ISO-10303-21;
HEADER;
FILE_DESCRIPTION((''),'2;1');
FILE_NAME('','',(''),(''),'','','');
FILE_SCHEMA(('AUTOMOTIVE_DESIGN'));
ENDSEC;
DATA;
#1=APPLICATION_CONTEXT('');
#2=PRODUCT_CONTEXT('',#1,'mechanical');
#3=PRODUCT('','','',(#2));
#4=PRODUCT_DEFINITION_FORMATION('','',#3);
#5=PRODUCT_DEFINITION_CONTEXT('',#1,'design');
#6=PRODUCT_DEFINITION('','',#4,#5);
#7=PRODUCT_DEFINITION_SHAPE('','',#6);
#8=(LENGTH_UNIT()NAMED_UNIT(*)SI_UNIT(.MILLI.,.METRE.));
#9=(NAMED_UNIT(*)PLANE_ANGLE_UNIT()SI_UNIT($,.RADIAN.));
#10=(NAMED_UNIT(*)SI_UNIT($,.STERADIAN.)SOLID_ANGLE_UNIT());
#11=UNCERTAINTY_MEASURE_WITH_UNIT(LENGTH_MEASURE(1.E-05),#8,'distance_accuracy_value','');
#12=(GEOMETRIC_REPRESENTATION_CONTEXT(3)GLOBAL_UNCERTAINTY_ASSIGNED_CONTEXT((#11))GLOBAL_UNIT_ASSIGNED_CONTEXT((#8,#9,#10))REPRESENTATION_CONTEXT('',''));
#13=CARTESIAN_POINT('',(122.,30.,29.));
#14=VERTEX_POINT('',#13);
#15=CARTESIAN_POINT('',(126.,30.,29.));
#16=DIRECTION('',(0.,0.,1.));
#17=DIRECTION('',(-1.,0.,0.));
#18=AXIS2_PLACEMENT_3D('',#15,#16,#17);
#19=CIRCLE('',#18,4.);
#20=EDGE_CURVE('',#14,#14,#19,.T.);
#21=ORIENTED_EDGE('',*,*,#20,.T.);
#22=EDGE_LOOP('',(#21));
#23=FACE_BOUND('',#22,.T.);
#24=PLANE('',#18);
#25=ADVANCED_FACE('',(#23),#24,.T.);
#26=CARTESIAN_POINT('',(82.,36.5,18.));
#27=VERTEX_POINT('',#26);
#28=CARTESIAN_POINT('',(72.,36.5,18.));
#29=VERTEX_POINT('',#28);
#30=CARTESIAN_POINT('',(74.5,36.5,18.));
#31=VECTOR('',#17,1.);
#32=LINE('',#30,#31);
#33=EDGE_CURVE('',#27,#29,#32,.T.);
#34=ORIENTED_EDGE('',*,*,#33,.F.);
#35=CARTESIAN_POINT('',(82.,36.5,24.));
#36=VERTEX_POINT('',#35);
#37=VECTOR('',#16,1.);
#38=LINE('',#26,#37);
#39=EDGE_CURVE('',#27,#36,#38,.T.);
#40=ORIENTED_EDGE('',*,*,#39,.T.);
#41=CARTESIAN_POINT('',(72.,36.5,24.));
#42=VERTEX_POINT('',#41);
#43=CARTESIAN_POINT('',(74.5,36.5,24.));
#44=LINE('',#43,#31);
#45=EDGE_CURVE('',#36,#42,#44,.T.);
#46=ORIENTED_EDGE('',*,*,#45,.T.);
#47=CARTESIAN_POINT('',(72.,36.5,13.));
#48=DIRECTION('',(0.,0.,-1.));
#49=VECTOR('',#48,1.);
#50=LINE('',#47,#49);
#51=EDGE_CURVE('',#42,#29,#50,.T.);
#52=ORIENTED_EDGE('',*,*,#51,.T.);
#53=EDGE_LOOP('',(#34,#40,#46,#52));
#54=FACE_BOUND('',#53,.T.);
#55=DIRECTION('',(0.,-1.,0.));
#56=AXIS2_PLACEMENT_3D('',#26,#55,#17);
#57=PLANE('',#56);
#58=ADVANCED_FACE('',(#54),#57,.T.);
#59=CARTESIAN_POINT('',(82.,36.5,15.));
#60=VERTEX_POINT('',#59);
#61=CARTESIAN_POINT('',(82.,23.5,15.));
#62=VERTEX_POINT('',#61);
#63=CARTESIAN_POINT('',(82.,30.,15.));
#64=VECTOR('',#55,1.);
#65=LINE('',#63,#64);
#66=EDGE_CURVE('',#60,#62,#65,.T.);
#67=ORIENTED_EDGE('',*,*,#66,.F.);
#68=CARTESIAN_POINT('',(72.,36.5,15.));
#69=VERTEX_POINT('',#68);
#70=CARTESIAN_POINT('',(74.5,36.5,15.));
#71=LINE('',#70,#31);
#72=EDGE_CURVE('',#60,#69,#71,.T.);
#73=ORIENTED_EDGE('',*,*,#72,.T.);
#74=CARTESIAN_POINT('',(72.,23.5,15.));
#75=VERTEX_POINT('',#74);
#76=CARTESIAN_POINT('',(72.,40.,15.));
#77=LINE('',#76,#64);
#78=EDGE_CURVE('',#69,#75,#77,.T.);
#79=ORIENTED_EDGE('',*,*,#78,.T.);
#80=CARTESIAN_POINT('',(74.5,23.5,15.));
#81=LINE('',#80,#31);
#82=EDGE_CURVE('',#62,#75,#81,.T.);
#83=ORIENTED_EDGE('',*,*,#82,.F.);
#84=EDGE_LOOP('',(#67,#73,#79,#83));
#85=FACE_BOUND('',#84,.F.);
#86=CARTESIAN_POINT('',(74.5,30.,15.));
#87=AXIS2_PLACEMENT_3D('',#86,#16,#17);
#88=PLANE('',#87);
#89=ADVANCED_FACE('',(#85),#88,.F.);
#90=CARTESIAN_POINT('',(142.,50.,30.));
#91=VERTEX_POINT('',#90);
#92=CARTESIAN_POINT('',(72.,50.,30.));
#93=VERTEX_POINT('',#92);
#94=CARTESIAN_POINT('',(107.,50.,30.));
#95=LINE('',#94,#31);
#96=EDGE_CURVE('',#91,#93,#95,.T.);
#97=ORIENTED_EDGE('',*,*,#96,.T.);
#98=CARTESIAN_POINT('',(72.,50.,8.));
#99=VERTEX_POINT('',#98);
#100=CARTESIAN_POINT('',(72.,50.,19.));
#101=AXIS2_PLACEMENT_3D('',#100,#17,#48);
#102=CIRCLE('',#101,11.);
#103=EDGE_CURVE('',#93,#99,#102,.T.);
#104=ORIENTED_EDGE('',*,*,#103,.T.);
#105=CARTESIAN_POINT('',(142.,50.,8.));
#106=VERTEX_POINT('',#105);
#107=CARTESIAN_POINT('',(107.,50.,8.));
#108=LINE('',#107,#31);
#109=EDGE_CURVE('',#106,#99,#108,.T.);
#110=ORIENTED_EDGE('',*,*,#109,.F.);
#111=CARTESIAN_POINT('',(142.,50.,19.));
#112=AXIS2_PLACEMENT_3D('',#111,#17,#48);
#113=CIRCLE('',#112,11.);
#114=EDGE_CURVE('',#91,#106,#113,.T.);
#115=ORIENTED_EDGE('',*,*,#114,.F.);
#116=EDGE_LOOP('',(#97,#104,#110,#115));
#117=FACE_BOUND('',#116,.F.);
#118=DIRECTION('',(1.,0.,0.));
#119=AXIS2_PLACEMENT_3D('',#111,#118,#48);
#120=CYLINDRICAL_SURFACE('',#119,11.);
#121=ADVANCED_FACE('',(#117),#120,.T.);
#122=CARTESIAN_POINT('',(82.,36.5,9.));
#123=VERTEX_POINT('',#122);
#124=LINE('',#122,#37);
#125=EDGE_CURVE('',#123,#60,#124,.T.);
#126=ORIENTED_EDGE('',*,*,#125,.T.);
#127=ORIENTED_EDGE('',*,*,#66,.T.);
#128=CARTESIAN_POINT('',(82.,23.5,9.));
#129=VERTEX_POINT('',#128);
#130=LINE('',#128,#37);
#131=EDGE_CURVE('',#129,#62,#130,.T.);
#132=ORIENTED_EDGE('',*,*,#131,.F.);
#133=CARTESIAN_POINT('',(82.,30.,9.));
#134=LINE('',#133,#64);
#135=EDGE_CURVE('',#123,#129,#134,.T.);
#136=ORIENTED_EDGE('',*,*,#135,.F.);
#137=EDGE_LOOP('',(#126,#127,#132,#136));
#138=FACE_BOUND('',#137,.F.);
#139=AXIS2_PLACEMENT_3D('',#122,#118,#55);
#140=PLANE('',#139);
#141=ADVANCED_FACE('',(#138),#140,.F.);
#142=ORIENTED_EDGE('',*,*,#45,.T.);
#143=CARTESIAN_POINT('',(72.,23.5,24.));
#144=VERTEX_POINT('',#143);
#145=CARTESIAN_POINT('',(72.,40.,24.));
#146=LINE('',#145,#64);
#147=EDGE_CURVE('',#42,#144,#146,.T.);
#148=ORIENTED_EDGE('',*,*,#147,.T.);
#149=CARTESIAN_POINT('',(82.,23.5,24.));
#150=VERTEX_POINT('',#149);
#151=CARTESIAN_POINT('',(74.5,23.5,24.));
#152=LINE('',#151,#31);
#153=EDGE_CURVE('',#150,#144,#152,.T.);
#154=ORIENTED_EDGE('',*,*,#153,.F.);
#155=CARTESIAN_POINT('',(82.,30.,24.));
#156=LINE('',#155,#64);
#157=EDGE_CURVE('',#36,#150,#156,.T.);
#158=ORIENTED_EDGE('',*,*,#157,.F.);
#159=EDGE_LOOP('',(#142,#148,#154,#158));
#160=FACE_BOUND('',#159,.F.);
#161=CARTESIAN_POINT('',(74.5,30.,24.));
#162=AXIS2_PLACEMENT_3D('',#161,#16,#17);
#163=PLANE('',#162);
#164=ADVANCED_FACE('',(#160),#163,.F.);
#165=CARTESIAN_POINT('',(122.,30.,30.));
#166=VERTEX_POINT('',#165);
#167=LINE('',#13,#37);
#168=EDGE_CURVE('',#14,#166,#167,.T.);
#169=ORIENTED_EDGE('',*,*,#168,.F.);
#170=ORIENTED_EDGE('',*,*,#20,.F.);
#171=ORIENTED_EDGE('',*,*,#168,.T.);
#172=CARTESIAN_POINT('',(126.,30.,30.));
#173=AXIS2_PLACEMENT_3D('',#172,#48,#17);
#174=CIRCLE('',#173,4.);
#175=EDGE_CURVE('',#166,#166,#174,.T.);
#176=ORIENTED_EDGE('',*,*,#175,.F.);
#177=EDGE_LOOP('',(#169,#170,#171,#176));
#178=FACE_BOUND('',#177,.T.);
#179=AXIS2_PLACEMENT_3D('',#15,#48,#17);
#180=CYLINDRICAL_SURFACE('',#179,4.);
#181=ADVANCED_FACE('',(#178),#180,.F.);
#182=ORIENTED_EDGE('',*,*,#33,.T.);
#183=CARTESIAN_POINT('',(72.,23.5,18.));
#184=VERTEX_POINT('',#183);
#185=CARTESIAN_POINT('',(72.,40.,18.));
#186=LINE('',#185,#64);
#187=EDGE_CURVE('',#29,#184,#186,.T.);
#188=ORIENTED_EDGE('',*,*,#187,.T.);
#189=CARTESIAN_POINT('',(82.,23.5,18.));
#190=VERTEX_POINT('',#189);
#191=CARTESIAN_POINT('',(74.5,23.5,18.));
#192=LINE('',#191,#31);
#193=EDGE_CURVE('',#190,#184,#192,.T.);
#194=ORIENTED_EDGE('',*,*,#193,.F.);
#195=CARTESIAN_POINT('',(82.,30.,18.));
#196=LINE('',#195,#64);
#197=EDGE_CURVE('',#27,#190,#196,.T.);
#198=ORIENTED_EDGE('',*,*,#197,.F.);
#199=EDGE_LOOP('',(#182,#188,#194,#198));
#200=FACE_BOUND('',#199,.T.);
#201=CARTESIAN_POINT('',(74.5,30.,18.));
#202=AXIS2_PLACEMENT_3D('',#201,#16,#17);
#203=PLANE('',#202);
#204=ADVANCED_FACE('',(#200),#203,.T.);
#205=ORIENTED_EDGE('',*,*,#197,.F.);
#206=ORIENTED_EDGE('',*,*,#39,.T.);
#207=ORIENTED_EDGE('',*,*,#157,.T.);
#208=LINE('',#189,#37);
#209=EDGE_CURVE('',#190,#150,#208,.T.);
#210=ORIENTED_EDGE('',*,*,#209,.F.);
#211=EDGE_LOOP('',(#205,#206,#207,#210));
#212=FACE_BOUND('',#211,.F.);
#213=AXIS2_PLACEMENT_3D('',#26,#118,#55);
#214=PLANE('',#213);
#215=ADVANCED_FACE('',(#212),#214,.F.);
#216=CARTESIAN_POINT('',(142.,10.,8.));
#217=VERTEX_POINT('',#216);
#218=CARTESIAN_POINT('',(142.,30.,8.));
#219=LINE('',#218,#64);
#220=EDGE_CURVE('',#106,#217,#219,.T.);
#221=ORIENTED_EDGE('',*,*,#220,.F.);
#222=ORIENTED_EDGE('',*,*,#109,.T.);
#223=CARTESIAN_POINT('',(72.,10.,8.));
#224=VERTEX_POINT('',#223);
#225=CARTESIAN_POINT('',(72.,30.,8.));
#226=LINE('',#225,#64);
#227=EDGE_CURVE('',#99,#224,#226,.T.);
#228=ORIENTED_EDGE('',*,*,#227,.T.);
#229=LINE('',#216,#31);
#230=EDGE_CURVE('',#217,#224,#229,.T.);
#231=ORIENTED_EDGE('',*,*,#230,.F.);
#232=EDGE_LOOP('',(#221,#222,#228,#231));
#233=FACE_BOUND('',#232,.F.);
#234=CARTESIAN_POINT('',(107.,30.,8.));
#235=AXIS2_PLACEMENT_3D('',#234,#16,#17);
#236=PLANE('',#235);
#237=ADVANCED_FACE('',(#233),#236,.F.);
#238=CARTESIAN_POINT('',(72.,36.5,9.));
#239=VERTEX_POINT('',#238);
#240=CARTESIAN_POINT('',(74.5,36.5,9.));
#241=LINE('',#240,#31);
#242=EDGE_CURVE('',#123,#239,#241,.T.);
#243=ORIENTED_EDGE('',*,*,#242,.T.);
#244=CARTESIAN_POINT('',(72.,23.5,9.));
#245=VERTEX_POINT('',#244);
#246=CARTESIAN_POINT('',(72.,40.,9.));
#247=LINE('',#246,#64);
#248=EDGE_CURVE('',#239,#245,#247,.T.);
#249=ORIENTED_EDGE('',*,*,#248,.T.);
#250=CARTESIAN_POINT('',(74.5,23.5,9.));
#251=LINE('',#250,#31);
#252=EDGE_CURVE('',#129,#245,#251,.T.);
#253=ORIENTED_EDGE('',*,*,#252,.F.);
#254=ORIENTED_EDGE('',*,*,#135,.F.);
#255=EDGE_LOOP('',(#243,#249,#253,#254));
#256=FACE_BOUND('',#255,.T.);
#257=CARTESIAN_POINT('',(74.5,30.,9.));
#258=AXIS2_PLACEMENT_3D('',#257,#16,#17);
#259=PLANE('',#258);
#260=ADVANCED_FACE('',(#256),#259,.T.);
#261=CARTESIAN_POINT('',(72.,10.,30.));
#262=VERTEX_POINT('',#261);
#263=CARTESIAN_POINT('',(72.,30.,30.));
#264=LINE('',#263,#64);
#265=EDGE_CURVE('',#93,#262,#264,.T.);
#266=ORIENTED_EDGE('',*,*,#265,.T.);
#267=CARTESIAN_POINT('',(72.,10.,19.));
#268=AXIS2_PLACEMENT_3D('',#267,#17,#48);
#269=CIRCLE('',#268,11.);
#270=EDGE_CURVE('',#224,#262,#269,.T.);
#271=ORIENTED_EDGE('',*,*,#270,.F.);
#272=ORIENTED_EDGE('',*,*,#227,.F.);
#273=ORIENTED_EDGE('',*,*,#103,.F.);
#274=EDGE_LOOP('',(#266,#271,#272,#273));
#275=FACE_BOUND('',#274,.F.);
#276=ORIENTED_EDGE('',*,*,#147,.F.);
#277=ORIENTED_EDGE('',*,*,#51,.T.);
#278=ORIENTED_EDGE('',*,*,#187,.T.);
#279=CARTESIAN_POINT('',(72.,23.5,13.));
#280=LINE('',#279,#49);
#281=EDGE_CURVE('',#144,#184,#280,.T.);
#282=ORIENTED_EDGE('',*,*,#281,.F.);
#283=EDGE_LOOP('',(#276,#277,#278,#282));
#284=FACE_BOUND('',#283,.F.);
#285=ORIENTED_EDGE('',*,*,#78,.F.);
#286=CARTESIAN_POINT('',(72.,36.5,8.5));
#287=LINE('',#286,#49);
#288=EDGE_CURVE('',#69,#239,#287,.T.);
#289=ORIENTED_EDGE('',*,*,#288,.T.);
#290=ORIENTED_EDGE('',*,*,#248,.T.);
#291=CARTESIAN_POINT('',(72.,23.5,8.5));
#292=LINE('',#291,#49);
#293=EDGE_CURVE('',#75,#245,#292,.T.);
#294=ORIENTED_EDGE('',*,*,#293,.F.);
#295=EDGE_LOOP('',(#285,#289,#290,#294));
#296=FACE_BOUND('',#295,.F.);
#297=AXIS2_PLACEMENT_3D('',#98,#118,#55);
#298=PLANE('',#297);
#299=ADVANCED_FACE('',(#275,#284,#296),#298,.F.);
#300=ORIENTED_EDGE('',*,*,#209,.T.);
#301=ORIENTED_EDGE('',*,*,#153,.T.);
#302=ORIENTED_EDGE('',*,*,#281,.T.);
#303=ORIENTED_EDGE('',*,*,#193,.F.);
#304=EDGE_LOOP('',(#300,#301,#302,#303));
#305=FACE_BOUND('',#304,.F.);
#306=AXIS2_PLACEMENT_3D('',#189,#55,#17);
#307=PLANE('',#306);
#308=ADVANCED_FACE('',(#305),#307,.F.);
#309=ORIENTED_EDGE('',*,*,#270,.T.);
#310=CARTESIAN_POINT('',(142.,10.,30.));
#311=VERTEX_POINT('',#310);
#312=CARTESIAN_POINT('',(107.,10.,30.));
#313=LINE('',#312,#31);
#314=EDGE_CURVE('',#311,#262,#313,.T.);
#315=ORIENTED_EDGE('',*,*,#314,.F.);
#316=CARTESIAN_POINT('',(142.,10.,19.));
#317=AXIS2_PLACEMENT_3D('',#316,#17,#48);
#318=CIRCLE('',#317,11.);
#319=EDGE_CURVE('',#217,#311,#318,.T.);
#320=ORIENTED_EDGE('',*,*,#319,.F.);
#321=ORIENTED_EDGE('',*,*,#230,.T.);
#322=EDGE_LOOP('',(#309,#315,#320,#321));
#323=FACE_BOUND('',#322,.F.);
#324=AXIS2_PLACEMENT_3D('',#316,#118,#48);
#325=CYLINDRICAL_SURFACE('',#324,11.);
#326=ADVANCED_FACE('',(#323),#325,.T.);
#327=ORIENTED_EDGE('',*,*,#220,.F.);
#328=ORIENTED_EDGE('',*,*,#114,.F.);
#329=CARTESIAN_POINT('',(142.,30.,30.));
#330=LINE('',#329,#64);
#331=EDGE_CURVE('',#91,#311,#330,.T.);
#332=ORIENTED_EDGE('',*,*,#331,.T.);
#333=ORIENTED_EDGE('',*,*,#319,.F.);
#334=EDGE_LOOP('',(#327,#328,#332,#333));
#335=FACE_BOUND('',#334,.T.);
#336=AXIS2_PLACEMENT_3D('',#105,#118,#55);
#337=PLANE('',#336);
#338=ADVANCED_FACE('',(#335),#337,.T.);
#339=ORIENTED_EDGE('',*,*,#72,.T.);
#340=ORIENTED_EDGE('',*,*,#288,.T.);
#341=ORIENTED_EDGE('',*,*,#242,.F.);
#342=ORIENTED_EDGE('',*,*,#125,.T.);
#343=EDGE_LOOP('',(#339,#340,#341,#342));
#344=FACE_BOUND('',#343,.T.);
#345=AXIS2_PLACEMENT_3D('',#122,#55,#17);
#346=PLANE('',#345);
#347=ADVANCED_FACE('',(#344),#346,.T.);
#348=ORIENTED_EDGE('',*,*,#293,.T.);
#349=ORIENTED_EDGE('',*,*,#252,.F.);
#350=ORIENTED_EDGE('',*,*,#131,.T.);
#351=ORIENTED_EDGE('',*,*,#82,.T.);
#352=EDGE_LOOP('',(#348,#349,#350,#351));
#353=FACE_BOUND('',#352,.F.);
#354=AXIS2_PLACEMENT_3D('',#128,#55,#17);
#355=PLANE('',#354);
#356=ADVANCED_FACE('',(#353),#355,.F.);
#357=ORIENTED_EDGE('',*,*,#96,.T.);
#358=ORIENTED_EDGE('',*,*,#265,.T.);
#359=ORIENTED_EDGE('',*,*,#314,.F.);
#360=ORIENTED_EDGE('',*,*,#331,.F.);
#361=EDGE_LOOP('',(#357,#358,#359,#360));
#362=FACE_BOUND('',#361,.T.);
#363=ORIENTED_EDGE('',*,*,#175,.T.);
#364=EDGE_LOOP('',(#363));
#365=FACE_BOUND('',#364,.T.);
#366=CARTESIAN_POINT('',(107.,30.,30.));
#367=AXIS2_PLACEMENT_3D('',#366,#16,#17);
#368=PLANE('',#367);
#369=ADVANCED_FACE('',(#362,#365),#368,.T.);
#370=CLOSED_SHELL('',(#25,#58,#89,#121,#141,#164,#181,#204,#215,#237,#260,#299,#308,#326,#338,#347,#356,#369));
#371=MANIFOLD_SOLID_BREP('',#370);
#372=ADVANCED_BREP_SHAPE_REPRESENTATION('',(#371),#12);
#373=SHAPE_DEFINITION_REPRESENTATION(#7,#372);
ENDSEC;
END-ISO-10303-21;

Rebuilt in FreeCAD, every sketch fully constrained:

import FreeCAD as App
import Part
import Sketcher
from FreeCAD import Vector
Q = App.Units.Quantity


def add_polygon(sketch, points):
    """Adds a closed chain of lines whose ends are joined by coincident constraints."""
    first, n = sketch.GeometryCount, len(points)
    for a, b in zip(points, points[1:] + points[:1]):
        sketch.addGeometry(Part.LineSegment(App.Vector(*a, 0), App.Vector(*b, 0)), False)
    for i in range(n):
        sketch.addConstraint(Sketcher.Constraint("Coincident", first + i, 2, first + (i + 1) % n, 1))

doc = App.newDocument("Part")
body = doc.addObject("PartDesign::Body", "Body")

# Sketch on XY plane
sketch1 = body.newObject("Sketcher::SketchObject", "Sketch")
sketch1.AttachmentSupport = (doc.getObject("XY_Plane"), [""])
sketch1.MapMode = "FlatFace"
sketch1.AttachmentOffset = App.Placement(Vector(0, 0, 10), App.Rotation())
sketch1.addGeometry(Part.Circle(Vector(16, 20, 0), Vector(0, 0, 1), 4), False)
sketch1.addConstraint([
    Sketcher.Constraint("Diameter", 0, Q("8 mm")),
    Sketcher.Constraint("DistanceX", -1, 1, 0, 3, Q("16 mm")),
    Sketcher.Constraint("DistanceY", -1, 1, 0, 3, Q("20 mm")),
])
pad1 = body.newObject("PartDesign::Pad", "Pad")
pad1.Profile = sketch1
pad1.Length = 2
body2 = doc.addObject("PartDesign::Body", "Body001")

# Sketch on XY plane
sketch2 = body2.newObject("Sketcher::SketchObject", "Sketch001")
sketch2.AttachmentSupport = (doc.getObject("XY_Plane001"), [""])
sketch2.MapMode = "FlatFace"
sketch2.AttachmentOffset = App.Placement(Vector(0, 0, -1), App.Rotation())
add_polygon(sketch2, [(60, 26), (60, 14), (75, 14), (75, 26)])  # lines 0-3
sketch2.addConstraint([
    Sketcher.Constraint("Vertical", 0),
    Sketcher.Constraint("Horizontal", 1),
    Sketcher.Constraint("Vertical", 2),
    Sketcher.Constraint("Horizontal", 3),
    Sketcher.Constraint("DistanceX", 1, 1, 1, 2, Q("15 mm")),
    Sketcher.Constraint("DistanceY", 0, 2, 0, 1, Q("13 mm")),
    Sketcher.Constraint("DistanceX", -1, 1, 0, 2, Q("60 mm")),
    Sketcher.Constraint("DistanceY", -1, 1, 0, 2, Q("13.5 mm")),
])
pad2 = body2.newObject("PartDesign::Pad", "Pad001")
pad2.Profile = sketch2
pad2.Length = 6
body3 = doc.addObject("PartDesign::Body", "Body002")
body3.AllowCompound = True

# Sketch on XY plane
sketch3 = body3.newObject("Sketcher::SketchObject", "Sketch002")
sketch3.AttachmentSupport = (doc.getObject("XY_Plane002"), [""])
sketch3.MapMode = "FlatFace"
sketch3.AttachmentOffset = App.Placement(Vector(0, 0, -10), App.Rotation())
add_polygon(sketch3, [(60, 26), (60, 14), (75, 14), (75, 26)])  # lines 0-3
sketch3.addConstraint([
    Sketcher.Constraint("Vertical", 0),
    Sketcher.Constraint("Horizontal", 1),
    Sketcher.Constraint("Vertical", 2),
    Sketcher.Constraint("Horizontal", 3),
    Sketcher.Constraint("DistanceX", 1, 1, 1, 2, Q("15 mm")),
    Sketcher.Constraint("DistanceY", 0, 2, 0, 1, Q("13 mm")),
    Sketcher.Constraint("DistanceX", -1, 1, 0, 2, Q("60 mm")),
    Sketcher.Constraint("DistanceY", -1, 1, 0, 2, Q("13.5 mm")),
])
pad3 = body3.newObject("PartDesign::Pad", "Pad002")
pad3.Profile = sketch3
pad3.Length = 6
doc.recompute()

boolean = body3.newObject("PartDesign::Boolean", "Boolean")
boolean.Type = "Fuse"
boolean.addObjects([body])
doc.recompute()

boolean2 = body3.newObject("PartDesign::Boolean", "Boolean001")
boolean2.Type = "Fuse"
boolean2.addObjects([body2])
body4 = doc.addObject("PartDesign::Body", "Body003")

# Sketch on XY plane
sketch4 = body4.newObject("Sketcher::SketchObject", "Sketch003")
sketch4.AttachmentSupport = (doc.getObject("XY_Plane003"), [""])
sketch4.MapMode = "FlatFace"
sketch4.AttachmentOffset = App.Placement(Vector(0, 0, -11), App.Rotation())
add_polygon(sketch4, [(0, 40), (0, 0), (70, 0), (70, 40)])  # lines 0-3
sketch4.addConstraint([
    Sketcher.Constraint("Vertical", 0),
    Sketcher.Constraint("Horizontal", 1),
    Sketcher.Constraint("Vertical", 2),
    Sketcher.Constraint("Horizontal", 3),
    Sketcher.Constraint("Coincident", 0, 2, -1, 1),
    Sketcher.Constraint("DistanceX", 1, 1, 1, 2, Q("70 mm")),
    Sketcher.Constraint("DistanceY", 0, 2, 0, 1, Q("40 mm")),
])
pad4 = body4.newObject("PartDesign::Pad", "Pad003")
pad4.Profile = sketch4
pad4.Length = 22
body5 = doc.addObject("PartDesign::Body", "Body004")

# Sketch on XY plane
sketch5 = body5.newObject("Sketcher::SketchObject", "Sketch004")
sketch5.AttachmentSupport = (doc.getObject("XY_Plane004"), [""])
sketch5.MapMode = "FlatFace"
sketch5.addGeometry(Part.Circle(Vector(0, 0, 0), Vector(0, 0, 1), 11), False)
sketch5.addConstraint([
    Sketcher.Constraint("Coincident", 0, 3, -1, 1),
    Sketcher.Constraint("Diameter", 0, Q("22 mm")),
])
pad5 = body5.newObject("PartDesign::Pad", "Pad004")
pad5.Profile = sketch5
pad5.Length = 70
body6 = doc.addObject("PartDesign::Body", "Body005")
doc.recompute()

body5.Placement = App.Placement(Vector(0, 0, 0), App.Rotation(Vector(0, 1, 0), 90))
boolean3 = body6.newObject("PartDesign::Boolean", "Boolean002")
boolean3.Type = "Fuse"
boolean3.addObjects([body5])
body7 = doc.addObject("PartDesign::Body", "Body006")

# Sketch on XY plane
sketch6 = body7.newObject("Sketcher::SketchObject", "Sketch005")
sketch6.AttachmentSupport = (doc.getObject("XY_Plane006"), [""])
sketch6.MapMode = "FlatFace"
sketch6.addGeometry(Part.Circle(Vector(0, 0, 0), Vector(0, 0, 1), 11), False)
sketch6.addConstraint([
    Sketcher.Constraint("Coincident", 0, 3, -1, 1),
    Sketcher.Constraint("Diameter", 0, Q("22 mm")),
])
pad6 = body7.newObject("PartDesign::Pad", "Pad005")
pad6.Profile = sketch6
pad6.Length = 70
body8 = doc.addObject("PartDesign::Body", "Body007")
doc.recompute()

body7.Placement = App.Placement(Vector(0, 0, 0), App.Rotation(Vector(0, 1, 0), 90))
boolean4 = body8.newObject("PartDesign::Boolean", "Boolean003")
boolean4.Type = "Fuse"
boolean4.addObjects([body7])
body9 = doc.addObject("PartDesign::Body", "Body008")
doc.recompute()

body8.Placement = App.Placement(Vector(0, 40, 0), App.Rotation(Vector(0, 0, 1), 0))
boolean5 = body9.newObject("PartDesign::Boolean", "Boolean004")
boolean5.Type = "Fuse"
boolean5.addObjects([body8])
doc.recompute()

boolean6 = body9.newObject("PartDesign::Boolean", "Boolean005")
boolean6.Type = "Fuse"
boolean6.addObjects([body4])
doc.recompute()

boolean7 = body9.newObject("PartDesign::Boolean", "Boolean006")
boolean7.Type = "Fuse"
boolean7.addObjects([body6])
doc.recompute()

boolean8 = body9.newObject("PartDesign::Boolean", "Boolean007")
boolean8.Type = "Cut"
boolean8.addObjects([body3])
body10 = doc.addObject("PartDesign::Body", "Body009")
doc.recompute()

body9.Placement = App.Placement(Vector(142, 50, 19), App.Rotation(Vector(0, 0, 1), 180))
boolean9 = body10.newObject("PartDesign::Boolean", "Boolean008")
boolean9.Type = "Fuse"
boolean9.addObjects([body9])

doc.recompute()
